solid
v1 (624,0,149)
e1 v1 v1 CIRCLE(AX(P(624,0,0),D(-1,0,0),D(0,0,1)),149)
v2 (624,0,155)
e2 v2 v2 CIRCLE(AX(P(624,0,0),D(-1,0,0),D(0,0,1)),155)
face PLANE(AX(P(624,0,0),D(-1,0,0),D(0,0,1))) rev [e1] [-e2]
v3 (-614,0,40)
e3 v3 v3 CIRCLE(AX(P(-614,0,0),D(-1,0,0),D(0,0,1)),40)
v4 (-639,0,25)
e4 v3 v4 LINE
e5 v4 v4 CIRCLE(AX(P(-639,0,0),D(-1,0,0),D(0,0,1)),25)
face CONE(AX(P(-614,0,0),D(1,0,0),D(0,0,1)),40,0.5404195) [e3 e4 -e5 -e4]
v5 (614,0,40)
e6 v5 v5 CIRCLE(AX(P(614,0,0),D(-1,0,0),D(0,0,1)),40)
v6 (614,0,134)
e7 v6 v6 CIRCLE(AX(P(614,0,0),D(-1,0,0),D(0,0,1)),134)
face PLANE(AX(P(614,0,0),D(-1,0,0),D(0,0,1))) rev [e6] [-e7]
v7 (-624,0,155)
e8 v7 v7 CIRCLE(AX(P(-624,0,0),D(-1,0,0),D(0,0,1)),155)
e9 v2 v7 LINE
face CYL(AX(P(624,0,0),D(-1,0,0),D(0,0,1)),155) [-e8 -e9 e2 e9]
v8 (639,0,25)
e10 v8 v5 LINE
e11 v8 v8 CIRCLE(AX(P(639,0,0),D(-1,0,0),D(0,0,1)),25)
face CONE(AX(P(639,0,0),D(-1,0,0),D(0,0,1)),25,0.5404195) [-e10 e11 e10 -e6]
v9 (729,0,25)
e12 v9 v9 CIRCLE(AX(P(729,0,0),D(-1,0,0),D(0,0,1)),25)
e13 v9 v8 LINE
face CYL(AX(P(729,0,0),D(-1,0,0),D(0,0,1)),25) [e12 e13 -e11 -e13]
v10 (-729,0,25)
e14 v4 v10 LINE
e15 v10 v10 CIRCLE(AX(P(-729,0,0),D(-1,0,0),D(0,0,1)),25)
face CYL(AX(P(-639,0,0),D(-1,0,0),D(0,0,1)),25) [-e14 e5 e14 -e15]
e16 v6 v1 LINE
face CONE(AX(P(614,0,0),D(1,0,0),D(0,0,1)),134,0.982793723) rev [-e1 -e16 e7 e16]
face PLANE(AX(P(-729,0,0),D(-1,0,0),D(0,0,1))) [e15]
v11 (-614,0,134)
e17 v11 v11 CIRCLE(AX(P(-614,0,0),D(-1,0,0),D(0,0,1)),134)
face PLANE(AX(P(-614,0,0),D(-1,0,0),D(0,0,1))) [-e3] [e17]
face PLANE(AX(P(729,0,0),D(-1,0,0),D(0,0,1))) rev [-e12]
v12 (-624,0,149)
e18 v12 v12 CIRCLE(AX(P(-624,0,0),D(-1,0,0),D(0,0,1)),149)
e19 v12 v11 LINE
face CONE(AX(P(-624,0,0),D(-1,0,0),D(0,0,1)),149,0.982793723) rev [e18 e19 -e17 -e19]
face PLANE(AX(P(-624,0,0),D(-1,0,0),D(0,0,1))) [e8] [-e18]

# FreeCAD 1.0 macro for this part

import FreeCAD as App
import Part
import Sketcher
Q = App.Units.Quantity


def add_polygon(sketch, points):
    """Adds a closed chain of lines whose ends are joined by coincident constraints."""
    first, n = sketch.GeometryCount, len(points)
    for a, b in zip(points, points[1:] + points[:1]):
        sketch.addGeometry(Part.LineSegment(App.Vector(*a, 0), App.Vector(*b, 0)), False)
    for i in range(n):
        sketch.addConstraint(Sketcher.Constraint("Coincident", first + i, 2, first + (i + 1) % n, 1))

doc = App.newDocument("Part")
body = doc.addObject("PartDesign::Body", "Body")

# Sketch on XZ plane
sketch1 = body.newObject("Sketcher::SketchObject", "Sketch")
sketch1.AttachmentSupport = (doc.getObject("XZ_Plane"), [""])
sketch1.MapMode = "FlatFace"
add_polygon(sketch1, [(-624, 155), (-624, 149), (-614, 134), (-614, 40), (-639, 25), (-729, 25), (-729, 0), (729, 0), (729, 25), (639, 25), (614, 40), (614, 134), (624, 149), (624, 155)])  # lines 0-13
sketch1.addConstraint(Sketcher.Constraint("Vertical", 0))
sketch1.addConstraint(Sketcher.Constraint("Vertical", 2))
sketch1.addConstraint(Sketcher.Constraint("Horizontal", 4))
sketch1.addConstraint(Sketcher.Constraint("Vertical", 5))
sketch1.addConstraint(Sketcher.Constraint("Horizontal", 6))
sketch1.addConstraint(Sketcher.Constraint("Vertical", 7))
sketch1.addConstraint(Sketcher.Constraint("Horizontal", 8))
sketch1.addConstraint(Sketcher.Constraint("Vertical", 10))
sketch1.addConstraint(Sketcher.Constraint("Vertical", 12))
sketch1.addConstraint(Sketcher.Constraint("Horizontal", 13))
sketch1.addConstraint(Sketcher.Constraint("Symmetric", 5, 2, 6, 2, -1, 1))
sketch1.addConstraint(Sketcher.Constraint("Symmetric", 3, 2, 8, 2, -2))
sketch1.addConstraint(Sketcher.Constraint("Symmetric", 2, 2, 9, 2, -2))
sketch1.addConstraint(Sketcher.Constraint("Symmetric", 0, 2, 11, 2, -2))
sketch1.addConstraint(Sketcher.Constraint("Horizontal", 1, 2, 10, 2))
sketch1.addConstraint(Sketcher.Constraint("DistanceX", 4, 2, 4, 1, Q("90 mm")))
sketch1.addConstraint(Sketcher.Constraint("DistanceX", 6, 1, 6, 2, Q("1458 mm")))
sketch1.addConstraint(Sketcher.Constraint("DistanceX", 13, 2, 13, 1, Q("1248 mm")))
sketch1.addConstraint(Sketcher.Constraint("DistanceY", 0, 2, 0, 1, Q("6 mm")))
sketch1.addConstraint(Sketcher.Constraint("DistanceY", 2, 2, 2, 1, Q("94 mm")))
sketch1.addConstraint(Sketcher.Constraint("DistanceY", 5, 2, 5, 1, Q("25 mm")))
sketch1.addConstraint(Sketcher.Constraint("DistanceY", -1, 1, 0, 2, Q("149 mm")))
sketch1.addConstraint(Sketcher.Constraint("DistanceX", 1, 2, -1, 1, Q("614 mm")))
sketch1.addConstraint(Sketcher.Constraint("DistanceY", -1, 1, 1, 2, Q("134 mm")))
revolution = body.newObject("PartDesign::Revolution", "Revolution")
revolution.Profile = sketch1
revolution.ReferenceAxis = (sketch1, ["H_Axis"])
revolution.Angle = 360

doc.recompute()
